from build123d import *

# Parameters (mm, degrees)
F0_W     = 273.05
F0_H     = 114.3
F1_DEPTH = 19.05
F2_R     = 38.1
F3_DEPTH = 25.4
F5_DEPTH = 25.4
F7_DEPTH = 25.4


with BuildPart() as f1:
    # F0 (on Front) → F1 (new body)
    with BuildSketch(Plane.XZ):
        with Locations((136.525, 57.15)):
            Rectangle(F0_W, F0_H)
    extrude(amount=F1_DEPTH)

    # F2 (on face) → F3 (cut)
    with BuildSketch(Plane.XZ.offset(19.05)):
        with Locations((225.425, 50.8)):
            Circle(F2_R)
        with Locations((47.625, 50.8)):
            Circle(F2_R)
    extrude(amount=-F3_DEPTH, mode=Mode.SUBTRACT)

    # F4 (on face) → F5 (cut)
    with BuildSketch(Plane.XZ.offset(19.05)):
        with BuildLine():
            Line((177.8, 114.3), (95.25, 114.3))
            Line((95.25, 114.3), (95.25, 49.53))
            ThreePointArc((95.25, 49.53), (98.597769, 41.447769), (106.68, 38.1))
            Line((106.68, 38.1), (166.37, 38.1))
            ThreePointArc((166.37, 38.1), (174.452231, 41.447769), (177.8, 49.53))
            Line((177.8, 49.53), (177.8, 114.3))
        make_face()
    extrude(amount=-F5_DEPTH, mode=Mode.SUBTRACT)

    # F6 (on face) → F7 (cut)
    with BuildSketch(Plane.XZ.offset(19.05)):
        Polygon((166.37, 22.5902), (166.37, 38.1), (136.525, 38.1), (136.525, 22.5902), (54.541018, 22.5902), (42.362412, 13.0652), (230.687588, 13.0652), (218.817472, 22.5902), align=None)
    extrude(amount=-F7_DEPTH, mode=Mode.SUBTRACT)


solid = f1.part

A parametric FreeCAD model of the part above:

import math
import FreeCAD as App
import Part
import Sketcher
from FreeCAD import Vector
Q = App.Units.Quantity

doc = App.newDocument("Part")
body = doc.addObject("PartDesign::Body", "Body")

sketch1 = body.newObject("Sketcher::SketchObject", "Sketch")
sketch1.AttachmentSupport = (doc.getObject("XZ_Plane"), [""])
sketch1.MapMode = "FlatFace"
sketch1.addGeometry([
    Part.LineSegment(Vector(0, 114.3, 0), Vector(0, 0, 0)),
    Part.LineSegment(Vector(0, 0, 0), Vector(273.05, 0, 0)),
    Part.LineSegment(Vector(273.05, 0, 0), Vector(273.05, 114.3, 0)),
    Part.LineSegment(Vector(273.05, 114.3, 0), Vector(0, 114.3, 0)),
], False)
sketch1.addConstraint([
    Sketcher.Constraint("Coincident", 0, 2, 1, 1),
    Sketcher.Constraint("Coincident", 1, 2, 2, 1),
    Sketcher.Constraint("Coincident", 2, 2, 3, 1),
    Sketcher.Constraint("Coincident", 3, 2, 0, 1),
    Sketcher.Constraint("Vertical", 0),
    Sketcher.Constraint("Horizontal", 1),
    Sketcher.Constraint("Vertical", 2),
    Sketcher.Constraint("Horizontal", 3),
    Sketcher.Constraint("Coincident", 0, 2, -1, 1),
    Sketcher.Constraint("DistanceY", 0, 2, 0, 1, Q("4.5 in")),
    Sketcher.Constraint("DistanceX", 1, 1, 1, 2, Q("10.75 in")),
])
pad1 = body.newObject("PartDesign::Pad", "Pad")
pad1.Profile = sketch1
pad1.Length = Q("0.75 in")

sketch2 = body.newObject("Sketcher::SketchObject", "Sketch001")
sketch2.AttachmentSupport = (doc.getObject("XZ_Plane"), [""])
sketch2.MapMode = "FlatFace"
sketch2.AttachmentOffset = App.Placement(Vector(0, 0, 0.75 * 25.4), App.Rotation())
sketch2.addGeometry([
    Part.Circle(Vector(225.425, 50.8, 0), Vector(0, 0, 1), 38.1),
    Part.Circle(Vector(47.625, 50.8, 0), Vector(0, 0, 1), 38.1),
], False)
sketch2.addConstraint([
    Sketcher.Constraint("Equal", 0, 1),
    Sketcher.Constraint("Horizontal", 0, 3, 1, 3),
    Sketcher.Constraint("Diameter", 0, Q("3 in")),
    Sketcher.Constraint("DistanceY", -1, 1, 0, 3, Q("2 in")),
    Sketcher.Constraint("DistanceX", 1, 3, 0, 3, Q("7 in")),
    Sketcher.Constraint("DistanceX", -1, 1, 0, 3, Q("8.875 in")),
])
pocket1 = body.newObject("PartDesign::Pocket", "Pocket")
pocket1.Profile = sketch2
pocket1.Length = Q("1 in")

sketch3 = body.newObject("Sketcher::SketchObject", "Sketch002")
sketch3.AttachmentSupport = (doc.getObject("XZ_Plane"), [""])
sketch3.MapMode = "FlatFace"
sketch3.AttachmentOffset = App.Placement(Vector(0, 0, 0.75 * 25.4), App.Rotation())
sketch3.addGeometry([
    Part.LineSegment(Vector(177.8, 114.3, 0), Vector(95.25, 114.3, 0)),
    Part.LineSegment(Vector(95.25, 114.3, 0), Vector(95.25, 49.53, 0)),
    Part.ArcOfCircle(Part.Circle(Vector(106.679998, 49.529998, 0), Vector(0, 0, 1), 11.429998), math.radians(179.999992), math.radians(270.000008)),
    Part.LineSegment(Vector(106.68, 38.1, 0), Vector(166.37, 38.1, 0)),
    Part.ArcOfCircle(Part.Circle(Vector(166.370002, 49.529998, 0), Vector(0, 0, 1), 11.429998), math.radians(-90.000008), math.radians(0.000008)),
    Part.LineSegment(Vector(177.8, 49.53, 0), Vector(177.8, 114.3, 0)),
], False)
sketch3.addConstraint([
    Sketcher.Constraint("Coincident", 0, 2, 1, 1),
    Sketcher.Constraint("Tangent", 1, 2, 2, 1),
    Sketcher.Constraint("Tangent", 2, 2, 3, 1),
    Sketcher.Constraint("Tangent", 3, 2, 4, 1),
    Sketcher.Constraint("Tangent", 4, 2, 5, 1),
    Sketcher.Constraint("Coincident", 5, 2, 0, 1),
    Sketcher.Constraint("Horizontal", 0),
    Sketcher.Constraint("Vertical", 1),
    Sketcher.Constraint("Horizontal", 3),
    Sketcher.Constraint("Vertical", 5),
    Sketcher.Constraint("Equal", 2, 4),
    Sketcher.Constraint("Radius", 2, Q("0.4499999 in")),
    Sketcher.Constraint("DistanceX", -1, 1, 4, 2, Q("7 in")),
    Sketcher.Constraint("DistanceY", 2, 2, 0, 2, Q("3 in")),
    Sketcher.Constraint("DistanceX", 0, 2, 0, 1, Q("3.25 in")),
    Sketcher.Constraint("DistanceY", -1, 1, 0, 2, Q("4.5 in")),
])
pocket2 = body.newObject("PartDesign::Pocket", "Pocket001")
pocket2.Profile = sketch3
pocket2.Length = Q("1 in")

sketch4 = body.newObject("Sketcher::SketchObject", "Sketch003")
sketch4.AttachmentSupport = (doc.getObject("XZ_Plane"), [""])
sketch4.MapMode = "FlatFace"
sketch4.AttachmentOffset = App.Placement(Vector(0, 0, 0.75 * 25.4), App.Rotation())
sketch4.addGeometry([
    Part.LineSegment(Vector(166.37, 22.5902, 0), Vector(166.37, 38.1, 0)),
    Part.LineSegment(Vector(166.37, 38.1, 0), Vector(136.525, 38.1, 0)),
    Part.LineSegment(Vector(136.525, 38.1, 0), Vector(136.525, 22.5902, 0)),
    Part.LineSegment(Vector(136.525, 22.5902, 0), Vector(54.541018, 22.5902, 0)),
    Part.LineSegment(Vector(54.541018, 22.5902, 0), Vector(42.362412, 13.0652, 0)),
    Part.LineSegment(Vector(42.362412, 13.0652, 0), Vector(230.687588, 13.0652, 0)),
    Part.LineSegment(Vector(230.687588, 13.0652, 0), Vector(218.817472, 22.5902, 0)),
    Part.LineSegment(Vector(218.817472, 22.5902, 0), Vector(166.37, 22.5902, 0)),
], False)
sketch4.addConstraint([
    Sketcher.Constraint("Coincident", 0, 2, 1, 1),
    Sketcher.Constraint("Coincident", 1, 2, 2, 1),
    Sketcher.Constraint("Coincident", 2, 2, 3, 1),
    Sketcher.Constraint("Coincident", 3, 2, 4, 1),
    Sketcher.Constraint("Coincident", 4, 2, 5, 1),
    Sketcher.Constraint("Coincident", 5, 2, 6, 1),
    Sketcher.Constraint("Coincident", 6, 2, 7, 1),
    Sketcher.Constraint("Coincident", 7, 2, 0, 1),
    Sketcher.Constraint("Vertical", 0),
    Sketcher.Constraint("Horizontal", 1),
    Sketcher.Constraint("Vertical", 2),
    Sketcher.Constraint("Horizontal", 3),
    Sketcher.Constraint("Horizontal", 5),
    Sketcher.Constraint("Horizontal", 7),
    Sketcher.Constraint("Horizontal", 3, 2, 6, 2),
    Sketcher.Constraint("DistanceY", -1, 1, 0, 2, Q("1.5 in")),
    Sketcher.Constraint("DistanceX", 1, 2, 1, 1, Q("1.175 in")),
    Sketcher.Constraint("DistanceX", -1, 1, 0, 2, Q("6.55 in")),
    Sketcher.Constraint("DistanceY", 4, 2, 3, 2, Q("0.375 in")),
    Sketcher.Constraint("DistanceY", 0, 1, 0, 2, 15.5098),
    Sketcher.Constraint("DistanceX", 3, 2, 3, 1, 81.983982),
    Sketcher.Constraint("Distance", 4, 15.46105),
    Sketcher.Constraint("Distance", 6, 15.21924),
    Sketcher.Constraint("DistanceX", 5, 1, 5, 2, 188.325176),
])
pocket3 = body.newObject("PartDesign::Pocket", "Pocket002")
pocket3.Profile = sketch4
pocket3.Length = Q("1 in")

doc.recompute()
